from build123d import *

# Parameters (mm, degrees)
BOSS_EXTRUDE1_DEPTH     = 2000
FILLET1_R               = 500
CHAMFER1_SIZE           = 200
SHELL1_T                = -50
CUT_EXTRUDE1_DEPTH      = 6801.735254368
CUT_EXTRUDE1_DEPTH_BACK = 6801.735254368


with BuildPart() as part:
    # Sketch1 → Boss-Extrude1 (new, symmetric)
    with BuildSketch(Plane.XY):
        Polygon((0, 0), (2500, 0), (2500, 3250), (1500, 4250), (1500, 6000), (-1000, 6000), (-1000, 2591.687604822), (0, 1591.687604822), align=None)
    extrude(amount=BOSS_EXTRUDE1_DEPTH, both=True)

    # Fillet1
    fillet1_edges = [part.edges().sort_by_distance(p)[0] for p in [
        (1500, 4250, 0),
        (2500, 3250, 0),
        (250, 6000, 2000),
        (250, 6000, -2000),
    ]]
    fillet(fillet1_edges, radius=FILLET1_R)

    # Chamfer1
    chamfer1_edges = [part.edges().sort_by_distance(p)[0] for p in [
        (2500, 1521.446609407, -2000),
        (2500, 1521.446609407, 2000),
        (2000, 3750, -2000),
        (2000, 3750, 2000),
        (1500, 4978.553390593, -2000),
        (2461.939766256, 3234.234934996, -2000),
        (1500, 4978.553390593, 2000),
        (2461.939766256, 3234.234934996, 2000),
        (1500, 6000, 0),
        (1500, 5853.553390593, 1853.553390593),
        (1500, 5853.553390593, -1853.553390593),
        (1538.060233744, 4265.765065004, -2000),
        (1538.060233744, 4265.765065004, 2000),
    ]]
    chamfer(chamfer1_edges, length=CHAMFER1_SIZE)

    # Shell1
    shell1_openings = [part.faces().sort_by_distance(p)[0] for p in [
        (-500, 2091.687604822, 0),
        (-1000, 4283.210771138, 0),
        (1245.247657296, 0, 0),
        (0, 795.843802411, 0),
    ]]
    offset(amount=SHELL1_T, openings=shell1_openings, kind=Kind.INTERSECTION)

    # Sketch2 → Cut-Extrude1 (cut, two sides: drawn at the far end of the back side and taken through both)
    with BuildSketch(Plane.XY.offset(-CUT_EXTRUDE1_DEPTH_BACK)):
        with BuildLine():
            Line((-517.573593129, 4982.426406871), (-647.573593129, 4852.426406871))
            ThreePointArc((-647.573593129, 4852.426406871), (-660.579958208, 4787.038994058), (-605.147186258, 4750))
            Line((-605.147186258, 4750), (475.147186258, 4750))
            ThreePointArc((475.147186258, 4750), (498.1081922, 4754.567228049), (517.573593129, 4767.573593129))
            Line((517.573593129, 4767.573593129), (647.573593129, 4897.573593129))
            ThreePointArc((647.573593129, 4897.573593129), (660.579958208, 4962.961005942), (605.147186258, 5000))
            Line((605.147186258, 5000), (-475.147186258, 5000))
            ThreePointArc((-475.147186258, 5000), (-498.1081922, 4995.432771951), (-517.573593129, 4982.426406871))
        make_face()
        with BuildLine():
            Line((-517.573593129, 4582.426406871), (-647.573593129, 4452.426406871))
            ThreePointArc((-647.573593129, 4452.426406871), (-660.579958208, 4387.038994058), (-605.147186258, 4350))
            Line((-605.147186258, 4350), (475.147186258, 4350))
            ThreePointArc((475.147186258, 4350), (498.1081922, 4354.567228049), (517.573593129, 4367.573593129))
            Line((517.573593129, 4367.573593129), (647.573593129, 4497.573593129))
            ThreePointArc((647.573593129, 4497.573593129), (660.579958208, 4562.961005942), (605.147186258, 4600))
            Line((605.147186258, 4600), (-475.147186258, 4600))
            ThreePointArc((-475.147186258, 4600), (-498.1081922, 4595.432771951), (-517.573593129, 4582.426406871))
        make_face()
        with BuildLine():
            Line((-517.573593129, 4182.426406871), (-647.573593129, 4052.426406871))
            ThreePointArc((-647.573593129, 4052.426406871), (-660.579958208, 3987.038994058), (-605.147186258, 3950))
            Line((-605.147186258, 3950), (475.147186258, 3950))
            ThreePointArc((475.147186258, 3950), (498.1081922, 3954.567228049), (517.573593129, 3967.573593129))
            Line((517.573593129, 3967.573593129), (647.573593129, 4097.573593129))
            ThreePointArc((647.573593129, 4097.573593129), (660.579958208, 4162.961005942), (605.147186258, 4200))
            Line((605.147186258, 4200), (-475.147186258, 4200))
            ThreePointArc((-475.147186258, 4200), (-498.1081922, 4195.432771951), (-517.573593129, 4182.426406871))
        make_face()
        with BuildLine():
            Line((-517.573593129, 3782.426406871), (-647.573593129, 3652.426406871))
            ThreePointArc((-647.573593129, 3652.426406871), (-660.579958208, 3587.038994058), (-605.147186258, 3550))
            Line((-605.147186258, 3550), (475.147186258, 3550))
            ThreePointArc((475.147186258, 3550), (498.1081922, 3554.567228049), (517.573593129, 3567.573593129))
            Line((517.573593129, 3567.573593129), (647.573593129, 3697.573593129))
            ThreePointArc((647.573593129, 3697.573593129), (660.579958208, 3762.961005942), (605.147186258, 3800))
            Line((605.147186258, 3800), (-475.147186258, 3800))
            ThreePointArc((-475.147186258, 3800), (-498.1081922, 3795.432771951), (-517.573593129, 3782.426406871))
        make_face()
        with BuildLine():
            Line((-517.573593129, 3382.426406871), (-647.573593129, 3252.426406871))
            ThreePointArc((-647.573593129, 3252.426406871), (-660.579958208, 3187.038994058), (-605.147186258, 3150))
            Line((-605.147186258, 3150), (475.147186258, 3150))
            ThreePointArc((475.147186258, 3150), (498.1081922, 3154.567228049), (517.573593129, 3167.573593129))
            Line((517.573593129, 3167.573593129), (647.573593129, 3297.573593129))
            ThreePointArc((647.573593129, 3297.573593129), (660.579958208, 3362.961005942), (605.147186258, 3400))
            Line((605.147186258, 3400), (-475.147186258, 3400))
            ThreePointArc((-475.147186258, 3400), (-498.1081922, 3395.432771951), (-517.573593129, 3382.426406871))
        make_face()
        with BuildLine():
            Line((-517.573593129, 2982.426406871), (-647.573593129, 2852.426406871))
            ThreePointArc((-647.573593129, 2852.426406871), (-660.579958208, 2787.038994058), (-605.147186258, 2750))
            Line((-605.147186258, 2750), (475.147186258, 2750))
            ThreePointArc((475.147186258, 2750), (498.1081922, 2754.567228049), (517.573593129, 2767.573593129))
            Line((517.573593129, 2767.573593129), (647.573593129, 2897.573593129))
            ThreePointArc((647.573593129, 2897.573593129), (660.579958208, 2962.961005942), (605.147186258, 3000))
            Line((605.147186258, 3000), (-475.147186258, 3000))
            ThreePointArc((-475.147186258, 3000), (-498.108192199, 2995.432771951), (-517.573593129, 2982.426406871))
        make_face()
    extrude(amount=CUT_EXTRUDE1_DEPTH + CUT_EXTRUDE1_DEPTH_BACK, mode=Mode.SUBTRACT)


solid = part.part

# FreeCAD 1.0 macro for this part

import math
import FreeCAD as App
import Part
import Sketcher
from FreeCAD import Vector
Q = App.Units.Quantity


def edges_at(feature, points):
    """Names of the edges that pass closest to the given points."""
    edges = feature.Shape.Edges
    near = lambda p: min(range(len(edges)), key=lambda i: edges[i].distToShape(Part.Vertex(*p))[0])
    return sorted({f"Edge{near(p) + 1}" for p in points})


def faces_at(feature, points):
    """Names of the faces that lie closest to the given points."""
    faces = feature.Shape.Faces
    near = lambda p: min(range(len(faces)), key=lambda i: faces[i].distToShape(Part.Vertex(*p))[0])
    return sorted({f"Face{near(p) + 1}" for p in points})

doc = App.newDocument("Part")
body = doc.addObject("PartDesign::Body", "Body")

sketch1 = doc.addObject("Sketcher::SketchObject", "Sketch")
body.addObject(sketch1)
sketch1.AttachmentSupport = (doc.XY_Plane, [""])
sketch1.MapMode = "FlatFace"
sketch1.addGeometry(Part.LineSegment(Vector(0, 0, 0), Vector(2500, 0, 0)), False)
sketch1.addGeometry(Part.LineSegment(Vector(2500, 0, 0), Vector(2500, 3250, 0)), False)
sketch1.addGeometry(Part.LineSegment(Vector(2500, 3250, 0), Vector(1500, 4250, 0)), False)
sketch1.addGeometry(Part.LineSegment(Vector(1500, 4250, 0), Vector(1500, 6000, 0)), False)
sketch1.addGeometry(Part.LineSegment(Vector(1500, 6000, 0), Vector(-1000, 6000, 0)), False)
sketch1.addGeometry(Part.LineSegment(Vector(-1000, 6000, 0), Vector(-1000, 2592, 0)), False)
sketch1.addGeometry(Part.LineSegment(Vector(-1000, 2592, 0), Vector(0, 1592, 0)), False)
sketch1.addGeometry(Part.LineSegment(Vector(0, 1592, 0), Vector(0, 0, 0)), False)
sketch1.addConstraint(Sketcher.Constraint("Coincident", 0, 2, 1, 1))
sketch1.addConstraint(Sketcher.Constraint("Coincident", 1, 2, 2, 1))
sketch1.addConstraint(Sketcher.Constraint("Coincident", 2, 2, 3, 1))
sketch1.addConstraint(Sketcher.Constraint("Coincident", 3, 2, 4, 1))
sketch1.addConstraint(Sketcher.Constraint("Coincident", 4, 2, 5, 1))
sketch1.addConstraint(Sketcher.Constraint("Coincident", 5, 2, 6, 1))
sketch1.addConstraint(Sketcher.Constraint("Coincident", 6, 2, 7, 1))
sketch1.addConstraint(Sketcher.Constraint("Coincident", 7, 2, 0, 1))
sketch1.addConstraint(Sketcher.Constraint("Horizontal", 0))
sketch1.addConstraint(Sketcher.Constraint("Vertical", 1))
sketch1.addConstraint(Sketcher.Constraint("Vertical", 3))
sketch1.addConstraint(Sketcher.Constraint("Horizontal", 4))
sketch1.addConstraint(Sketcher.Constraint("Vertical", 5))
sketch1.addConstraint(Sketcher.Constraint("Vertical", 7))
sketch1.addConstraint(Sketcher.Constraint("Coincident", 7, 2, -1, 1))
sketch1.addConstraint(Sketcher.Constraint("Parallel", 2, 6))
sketch1.addConstraint(Sketcher.Constraint("Equal", 0, 4))
sketch1.addConstraint(Sketcher.Constraint("DistanceX", 0, 1, 0, 2, Q("2500 mm")))
sketch1.addConstraint(Sketcher.Constraint("DistanceY", 1, 1, 1, 2, Q("3250 mm")))
sketch1.addConstraint(Sketcher.Constraint("DistanceY", 3, 1, 3, 2, Q("1750 mm")))
sketch1.addConstraint(Sketcher.Constraint("Angle", 2, Q("135 deg")))
sketch1.addConstraint(Sketcher.Constraint("DistanceX", -1, 1, 2, 2, Q("1500 mm")))
sketch1.addConstraint(Sketcher.Constraint("DistanceY", 5, 2, 5, 1, Q("3408.312395 mm")))
pad1 = doc.addObject("PartDesign::Pad", "Pad")
body.addObject(pad1)
pad1.Profile = sketch1
pad1.Length = 4000
pad1.Midplane = True
doc.recompute()

fillet = doc.addObject("PartDesign::Fillet", "Fillet")
body.addObject(fillet)
fillet.Base = (pad1, edges_at(pad1, [
    (1500, 4250, 0),
    (2500, 3250, 0),
    (250, 6000, 2000),
    (250, 6000, -2000),
]))
fillet.Radius = 500
doc.recompute()

chamfer = doc.addObject("PartDesign::Chamfer", "Chamfer")
body.addObject(chamfer)
chamfer.Base = (fillet, edges_at(fillet, [
    (2500, 1521.447, -2000),
    (2500, 1521.447, 2000),
    (2000, 3750, -2000),
    (2000, 3750, 2000),
    (1500, 4978.553, -2000),
    (2461.94, 3234.235, -2000),
    (1500, 4978.553, 2000),
    (2461.94, 3234.235, 2000),
    (1500, 6000, 0),
    (1500, 5853.553, 1853.553),
    (1500, 5853.553, -1853.553),
    (1538.06, 4265.765, -2000),
    (1538.06, 4265.765, 2000),
]))
chamfer.Size = 200
doc.recompute()

thickness = doc.addObject("PartDesign::Thickness", "Thickness")
body.addObject(thickness)
thickness.Base = (chamfer, faces_at(chamfer, [
    (-500, 2091.688, 0),
    (-1000, 4295.844, 0),
    (1250, 0, 0),
    (0, 795.844, 0),
]))
thickness.Value = 50
thickness.Reversed = True
thickness.Join = "Intersection"

sketch2 = doc.addObject("Sketcher::SketchObject", "Sketch001")
body.addObject(sketch2)
sketch2.AttachmentSupport = (doc.XY_Plane, [""])
sketch2.MapMode = "FlatFace"
sketch2.addGeometry(Part.LineSegment(Vector(-518, 4982, 0), Vector(-648, 4852, 0)), False)
sketch2.addGeometry(Part.ArcOfCircle(Part.Circle(Vector(-605, 4810, 0), Vector(0, 0, 1), 60), math.radians(135), math.radians(270)), False)
sketch2.addGeometry(Part.LineSegment(Vector(-605, 4750, 0), Vector(475, 4750, 0)), False)
sketch2.addGeometry(Part.ArcOfCircle(Part.Circle(Vector(475, 4810, 0), Vector(0, 0, 1), 60), math.radians(-90), math.radians(-45)), False)
sketch2.addGeometry(Part.LineSegment(Vector(518, 4768, 0), Vector(648, 4898, 0)), False)
sketch2.addGeometry(Part.ArcOfCircle(Part.Circle(Vector(605, 4940, 0), Vector(0, 0, 1), 60), math.radians(-45), math.radians(90)), False)
sketch2.addGeometry(Part.LineSegment(Vector(605, 5000, 0), Vector(-475, 5000, 0)), False)
sketch2.addGeometry(Part.ArcOfCircle(Part.Circle(Vector(-475, 4940, 0), Vector(0, 0, 1), 60), math.radians(90), math.radians(135)), False)
sketch2.addGeometry(Part.LineSegment(Vector(-518, 4582, 0), Vector(-648, 4452, 0)), False)
sketch2.addGeometry(Part.ArcOfCircle(Part.Circle(Vector(-605, 4410, 0), Vector(0, 0, 1), 60), math.radians(135), math.radians(270)), False)
sketch2.addGeometry(Part.LineSegment(Vector(-605, 4350, 0), Vector(475, 4350, 0)), False)
sketch2.addGeometry(Part.ArcOfCircle(Part.Circle(Vector(475, 4410, 0), Vector(0, 0, 1), 60), math.radians(-90), math.radians(-45)), False)
sketch2.addGeometry(Part.LineSegment(Vector(518, 4368, 0), Vector(648, 4498, 0)), False)
sketch2.addGeometry(Part.ArcOfCircle(Part.Circle(Vector(605, 4540, 0), Vector(0, 0, 1), 60), math.radians(-45), math.radians(90)), False)
sketch2.addGeometry(Part.LineSegment(Vector(605, 4600, 0), Vector(-475, 4600, 0)), False)
sketch2.addGeometry(Part.ArcOfCircle(Part.Circle(Vector(-475, 4540, 0), Vector(0, 0, 1), 60), math.radians(90), math.radians(135)), False)
sketch2.addGeometry(Part.LineSegment(Vector(-518, 4182, 0), Vector(-648, 4052, 0)), False)
sketch2.addGeometry(Part.ArcOfCircle(Part.Circle(Vector(-605, 4010, 0), Vector(0, 0, 1), 60), math.radians(135), math.radians(270)), False)
sketch2.addGeometry(Part.LineSegment(Vector(-605, 3950, 0), Vector(475, 3950, 0)), False)
sketch2.addGeometry(Part.ArcOfCircle(Part.Circle(Vector(475, 4010, 0), Vector(0, 0, 1), 60), math.radians(-90), math.radians(-45)), False)
sketch2.addGeometry(Part.LineSegment(Vector(518, 3968, 0), Vector(648, 4098, 0)), False)
sketch2.addGeometry(Part.ArcOfCircle(Part.Circle(Vector(605, 4140, 0), Vector(0, 0, 1), 60), math.radians(-45), math.radians(90)), False)
sketch2.addGeometry(Part.LineSegment(Vector(605, 4200, 0), Vector(-475, 4200, 0)), False)
sketch2.addGeometry(Part.ArcOfCircle(Part.Circle(Vector(-475, 4140, 0), Vector(0, 0, 1), 60), math.radians(90), math.radians(135)), False)
sketch2.addGeometry(Part.LineSegment(Vector(-518, 3782, 0), Vector(-648, 3652, 0)), False)
sketch2.addGeometry(Part.ArcOfCircle(Part.Circle(Vector(-605, 3610, 0), Vector(0, 0, 1), 60), math.radians(135), math.radians(270)), False)
sketch2.addGeometry(Part.LineSegment(Vector(-605, 3550, 0), Vector(475, 3550, 0)), False)
sketch2.addGeometry(Part.ArcOfCircle(Part.Circle(Vector(475, 3610, 0), Vector(0, 0, 1), 60), math.radians(-90), math.radians(-45)), False)
sketch2.addGeometry(Part.LineSegment(Vector(518, 3568, 0), Vector(648, 3698, 0)), False)
sketch2.addGeometry(Part.ArcOfCircle(Part.Circle(Vector(605, 3740, 0), Vector(0, 0, 1), 60), math.radians(-45), math.radians(90)), False)
sketch2.addGeometry(Part.LineSegment(Vector(605, 3800, 0), Vector(-475, 3800, 0)), False)
sketch2.addGeometry(Part.ArcOfCircle(Part.Circle(Vector(-475, 3740, 0), Vector(0, 0, 1), 60), math.radians(90), math.radians(135)), False)
sketch2.addGeometry(Part.LineSegment(Vector(-518, 3382, 0), Vector(-648, 3252, 0)), False)
sketch2.addGeometry(Part.ArcOfCircle(Part.Circle(Vector(-605, 3210, 0), Vector(0, 0, 1), 60), math.radians(135), math.radians(270)), False)
sketch2.addGeometry(Part.LineSegment(Vector(-605, 3150, 0), Vector(475, 3150, 0)), False)
sketch2.addGeometry(Part.ArcOfCircle(Part.Circle(Vector(475, 3210, 0), Vector(0, 0, 1), 60), math.radians(-90), math.radians(-45)), False)
sketch2.addGeometry(Part.LineSegment(Vector(518, 3168, 0), Vector(648, 3298, 0)), False)
sketch2.addGeometry(Part.ArcOfCircle(Part.Circle(Vector(605, 3340, 0), Vector(0, 0, 1), 60), math.radians(-45), math.radians(90)), False)
sketch2.addGeometry(Part.LineSegment(Vector(605, 3400, 0), Vector(-475, 3400, 0)), False)
sketch2.addGeometry(Part.ArcOfCircle(Part.Circle(Vector(-475, 3340, 0), Vector(0, 0, 1), 60), math.radians(90), math.radians(135)), False)
sketch2.addGeometry(Part.LineSegment(Vector(-518, 2982, 0), Vector(-648, 2852, 0)), False)
sketch2.addGeometry(Part.ArcOfCircle(Part.Circle(Vector(-605, 2810, 0), Vector(0, 0, 1), 60), math.radians(135), math.radians(270)), False)
sketch2.addGeometry(Part.LineSegment(Vector(-605, 2750, 0), Vector(475, 2750, 0)), False)
sketch2.addGeometry(Part.ArcOfCircle(Part.Circle(Vector(475, 2810, 0), Vector(0, 0, 1), 60), math.radians(-90), math.radians(-45)), False)
sketch2.addGeometry(Part.LineSegment(Vector(518, 2768, 0), Vector(648, 2898, 0)), False)
sketch2.addGeometry(Part.ArcOfCircle(Part.Circle(Vector(605, 2940, 0), Vector(0, 0, 1), 60), math.radians(-45), math.radians(90)), False)
sketch2.addGeometry(Part.LineSegment(Vector(605, 3000, 0), Vector(-475, 3000, 0)), False)
sketch2.addGeometry(Part.ArcOfCircle(Part.Circle(Vector(-475, 2940, 0), Vector(0, 0, 1), 60), math.radians(90), math.radians(135)), False)
sketch2.addConstraint(Sketcher.Constraint("Tangent", 0, 2, 1, 1))
sketch2.addConstraint(Sketcher.Constraint("Tangent", 1, 2, 2, 1))
sketch2.addConstraint(Sketcher.Constraint("Tangent", 2, 2, 3, 1))
sketch2.addConstraint(Sketcher.Constraint("Tangent", 3, 2, 4, 1))
sketch2.addConstraint(Sketcher.Constraint("Tangent", 4, 2, 5, 1))
sketch2.addConstraint(Sketcher.Constraint("Tangent", 5, 2, 6, 1))
sketch2.addConstraint(Sketcher.Constraint("Tangent", 6, 2, 7, 1))
sketch2.addConstraint(Sketcher.Constraint("Tangent", 7, 2, 0, 1))
sketch2.addConstraint(Sketcher.Constraint("Tangent", 8, 2, 9, 1))
sketch2.addConstraint(Sketcher.Constraint("Tangent", 9, 2, 10, 1))
sketch2.addConstraint(Sketcher.Constraint("Tangent", 10, 2, 11, 1))
sketch2.addConstraint(Sketcher.Constraint("Tangent", 11, 2, 12, 1))
sketch2.addConstraint(Sketcher.Constraint("Tangent", 12, 2, 13, 1))
sketch2.addConstraint(Sketcher.Constraint("Tangent", 13, 2, 14, 1))
sketch2.addConstraint(Sketcher.Constraint("Tangent", 14, 2, 15, 1))
sketch2.addConstraint(Sketcher.Constraint("Tangent", 15, 2, 8, 1))
sketch2.addConstraint(Sketcher.Constraint("Tangent", 16, 2, 17, 1))
sketch2.addConstraint(Sketcher.Constraint("Tangent", 17, 2, 18, 1))
sketch2.addConstraint(Sketcher.Constraint("Tangent", 18, 2, 19, 1))
sketch2.addConstraint(Sketcher.Constraint("Tangent", 19, 2, 20, 1))
sketch2.addConstraint(Sketcher.Constraint("Tangent", 20, 2, 21, 1))
sketch2.addConstraint(Sketcher.Constraint("Tangent", 21, 2, 22, 1))
sketch2.addConstraint(Sketcher.Constraint("Tangent", 22, 2, 23, 1))
sketch2.addConstraint(Sketcher.Constraint("Tangent", 23, 2, 16, 1))
sketch2.addConstraint(Sketcher.Constraint("Tangent", 24, 2, 25, 1))
sketch2.addConstraint(Sketcher.Constraint("Tangent", 25, 2, 26, 1))
sketch2.addConstraint(Sketcher.Constraint("Tangent", 26, 2, 27, 1))
sketch2.addConstraint(Sketcher.Constraint("Tangent", 27, 2, 28, 1))
sketch2.addConstraint(Sketcher.Constraint("Tangent", 28, 2, 29, 1))
sketch2.addConstraint(Sketcher.Constraint("Tangent", 29, 2, 30, 1))
sketch2.addConstraint(Sketcher.Constraint("Tangent", 30, 2, 31, 1))
sketch2.addConstraint(Sketcher.Constraint("Tangent", 31, 2, 24, 1))
sketch2.addConstraint(Sketcher.Constraint("Tangent", 32, 2, 33, 1))
sketch2.addConstraint(Sketcher.Constraint("Tangent", 33, 2, 34, 1))
sketch2.addConstraint(Sketcher.Constraint("Tangent", 34, 2, 35, 1))
sketch2.addConstraint(Sketcher.Constraint("Tangent", 35, 2, 36, 1))
sketch2.addConstraint(Sketcher.Constraint("Tangent", 36, 2, 37, 1))
sketch2.addConstraint(Sketcher.Constraint("Tangent", 37, 2, 38, 1))
sketch2.addConstraint(Sketcher.Constraint("Tangent", 38, 2, 39, 1))
sketch2.addConstraint(Sketcher.Constraint("Tangent", 39, 2, 32, 1))
sketch2.addConstraint(Sketcher.Constraint("Tangent", 40, 2, 41, 1))
sketch2.addConstraint(Sketcher.Constraint("Tangent", 41, 2, 42, 1))
sketch2.addConstraint(Sketcher.Constraint("Tangent", 42, 2, 43, 1))
sketch2.addConstraint(Sketcher.Constraint("Tangent", 43, 2, 44, 1))
sketch2.addConstraint(Sketcher.Constraint("Tangent", 44, 2, 45, 1))
sketch2.addConstraint(Sketcher.Constraint("Tangent", 45, 2, 46, 1))
sketch2.addConstraint(Sketcher.Constraint("Tangent", 46, 2, 47, 1))
sketch2.addConstraint(Sketcher.Constraint("Tangent", 47, 2, 40, 1))
sketch2.addConstraint(Sketcher.Constraint("Horizontal", 2))
sketch2.addConstraint(Sketcher.Constraint("Horizontal", 6))
sketch2.addConstraint(Sketcher.Constraint("Horizontal", 10))
sketch2.addConstraint(Sketcher.Constraint("Horizontal", 14))
sketch2.addConstraint(Sketcher.Constraint("Horizontal", 18))
sketch2.addConstraint(Sketcher.Constraint("Horizontal", 22))
sketch2.addConstraint(Sketcher.Constraint("Horizontal", 26))
sketch2.addConstraint(Sketcher.Constraint("Horizontal", 30))
sketch2.addConstraint(Sketcher.Constraint("Horizontal", 34))
sketch2.addConstraint(Sketcher.Constraint("Horizontal", 38))
sketch2.addConstraint(Sketcher.Constraint("Horizontal", 42))
sketch2.addConstraint(Sketcher.Constraint("Horizontal", 46))
sketch2.addConstraint(Sketcher.Constraint("Equal", 1, 3))
sketch2.addConstraint(Sketcher.Constraint("Equal", 3, 5))
sketch2.addConstraint(Sketcher.Constraint("Equal", 5, 7))
sketch2.addConstraint(Sketcher.Constraint("Equal", 7, 9))
sketch2.addConstraint(Sketcher.Constraint("Equal", 9, 11))
sketch2.addConstraint(Sketcher.Constraint("Equal", 11, 13))
sketch2.addConstraint(Sketcher.Constraint("Equal", 13, 15))
sketch2.addConstraint(Sketcher.Constraint("Equal", 15, 17))
sketch2.addConstraint(Sketcher.Constraint("Equal", 17, 19))
sketch2.addConstraint(Sketcher.Constraint("Equal", 19, 21))
sketch2.addConstraint(Sketcher.Constraint("Equal", 21, 23))
sketch2.addConstraint(Sketcher.Constraint("Equal", 23, 25))
sketch2.addConstraint(Sketcher.Constraint("Equal", 25, 27))
sketch2.addConstraint(Sketcher.Constraint("Equal", 27, 29))
sketch2.addConstraint(Sketcher.Constraint("Equal", 29, 31))
sketch2.addConstraint(Sketcher.Constraint("Equal", 31, 33))
sketch2.addConstraint(Sketcher.Constraint("Equal", 33, 35))
sketch2.addConstraint(Sketcher.Constraint("Equal", 35, 37))
sketch2.addConstraint(Sketcher.Constraint("Equal", 37, 39))
sketch2.addConstraint(Sketcher.Constraint("Equal", 39, 41))
sketch2.addConstraint(Sketcher.Constraint("Equal", 41, 43))
sketch2.addConstraint(Sketcher.Constraint("Equal", 43, 45))
sketch2.addConstraint(Sketcher.Constraint("Equal", 45, 47))
sketch2.addConstraint(Sketcher.Constraint("Parallel", 0, 4))
sketch2.addConstraint(Sketcher.Constraint("Parallel", 4, 8))
sketch2.addConstraint(Sketcher.Constraint("Parallel", 8, 12))
sketch2.addConstraint(Sketcher.Constraint("Parallel", 12, 16))
sketch2.addConstraint(Sketcher.Constraint("Parallel", 16, 20))
sketch2.addConstraint(Sketcher.Constraint("Parallel", 20, 24))
sketch2.addConstraint(Sketcher.Constraint("Parallel", 24, 28))
sketch2.addConstraint(Sketcher.Constraint("Parallel", 28, 32))
sketch2.addConstraint(Sketcher.Constraint("Parallel", 32, 36))
sketch2.addConstraint(Sketcher.Constraint("Parallel", 36, 40))
sketch2.addConstraint(Sketcher.Constraint("Parallel", 40, 44))
sketch2.addConstraint(Sketcher.Constraint("Vertical", 1, 3, 9, 3))
sketch2.addConstraint(Sketcher.Constraint("Vertical", 3, 3, 11, 3))
sketch2.addConstraint(Sketcher.Constraint("Vertical", 5, 3, 13, 3))
sketch2.addConstraint(Sketcher.Constraint("Vertical", 9, 3, 17, 3))
sketch2.addConstraint(Sketcher.Constraint("Vertical", 11, 3, 19, 3))
sketch2.addConstraint(Sketcher.Constraint("Vertical", 13, 3, 21, 3))
sketch2.addConstraint(Sketcher.Constraint("Vertical", 17, 3, 25, 3))
sketch2.addConstraint(Sketcher.Constraint("Vertical", 19, 3, 27, 3))
sketch2.addConstraint(Sketcher.Constraint("Vertical", 21, 3, 29, 3))
sketch2.addConstraint(Sketcher.Constraint("Vertical", 25, 3, 33, 3))
sketch2.addConstraint(Sketcher.Constraint("Vertical", 27, 3, 35, 3))
sketch2.addConstraint(Sketcher.Constraint("Vertical", 29, 3, 37, 3))
sketch2.addConstraint(Sketcher.Constraint("Vertical", 33, 3, 41, 3))
sketch2.addConstraint(Sketcher.Constraint("Vertical", 35, 3, 43, 3))
sketch2.addConstraint(Sketcher.Constraint("Vertical", 37, 3, 45, 3))
sketch2.addConstraint(Sketcher.Constraint("Radius", 1, Q("60 mm")))
sketch2.addConstraint(Sketcher.Constraint("Angle", 0, Q("-135 deg")))
sketch2.addConstraint(Sketcher.Constraint("DistanceY", -1, 1, 1, 3, Q("4810 mm")))
sketch2.addConstraint(Sketcher.Constraint("DistanceY", -1, 1, 5, 3, Q("4940 mm")))
sketch2.addConstraint(Sketcher.Constraint("DistanceY", -1, 1, 9, 3, Q("4410 mm")))
sketch2.addConstraint(Sketcher.Constraint("DistanceY", -1, 1, 17, 3, Q("4010 mm")))
sketch2.addConstraint(Sketcher.Constraint("DistanceY", -1, 1, 25, 3, Q("3610 mm")))
sketch2.addConstraint(Sketcher.Constraint("DistanceY", -1, 1, 33, 3, Q("3210 mm")))
sketch2.addConstraint(Sketcher.Constraint("DistanceY", -1, 1, 41, 3, Q("2810 mm")))
sketch2.addConstraint(Sketcher.Constraint("DistanceX", 2, 1, 2, 2, Q("1080.294373 mm")))
sketch2.addConstraint(Sketcher.Constraint("DistanceX", 1, 3, -1, 1, Q("605.147186 mm")))
pocket1 = doc.addObject("PartDesign::Pocket", "Pocket")
body.addObject(pocket1)
pocket1.Profile = sketch2
pocket1.Type = "ThroughAll"
pocket1.Midplane = True

doc.recompute()
